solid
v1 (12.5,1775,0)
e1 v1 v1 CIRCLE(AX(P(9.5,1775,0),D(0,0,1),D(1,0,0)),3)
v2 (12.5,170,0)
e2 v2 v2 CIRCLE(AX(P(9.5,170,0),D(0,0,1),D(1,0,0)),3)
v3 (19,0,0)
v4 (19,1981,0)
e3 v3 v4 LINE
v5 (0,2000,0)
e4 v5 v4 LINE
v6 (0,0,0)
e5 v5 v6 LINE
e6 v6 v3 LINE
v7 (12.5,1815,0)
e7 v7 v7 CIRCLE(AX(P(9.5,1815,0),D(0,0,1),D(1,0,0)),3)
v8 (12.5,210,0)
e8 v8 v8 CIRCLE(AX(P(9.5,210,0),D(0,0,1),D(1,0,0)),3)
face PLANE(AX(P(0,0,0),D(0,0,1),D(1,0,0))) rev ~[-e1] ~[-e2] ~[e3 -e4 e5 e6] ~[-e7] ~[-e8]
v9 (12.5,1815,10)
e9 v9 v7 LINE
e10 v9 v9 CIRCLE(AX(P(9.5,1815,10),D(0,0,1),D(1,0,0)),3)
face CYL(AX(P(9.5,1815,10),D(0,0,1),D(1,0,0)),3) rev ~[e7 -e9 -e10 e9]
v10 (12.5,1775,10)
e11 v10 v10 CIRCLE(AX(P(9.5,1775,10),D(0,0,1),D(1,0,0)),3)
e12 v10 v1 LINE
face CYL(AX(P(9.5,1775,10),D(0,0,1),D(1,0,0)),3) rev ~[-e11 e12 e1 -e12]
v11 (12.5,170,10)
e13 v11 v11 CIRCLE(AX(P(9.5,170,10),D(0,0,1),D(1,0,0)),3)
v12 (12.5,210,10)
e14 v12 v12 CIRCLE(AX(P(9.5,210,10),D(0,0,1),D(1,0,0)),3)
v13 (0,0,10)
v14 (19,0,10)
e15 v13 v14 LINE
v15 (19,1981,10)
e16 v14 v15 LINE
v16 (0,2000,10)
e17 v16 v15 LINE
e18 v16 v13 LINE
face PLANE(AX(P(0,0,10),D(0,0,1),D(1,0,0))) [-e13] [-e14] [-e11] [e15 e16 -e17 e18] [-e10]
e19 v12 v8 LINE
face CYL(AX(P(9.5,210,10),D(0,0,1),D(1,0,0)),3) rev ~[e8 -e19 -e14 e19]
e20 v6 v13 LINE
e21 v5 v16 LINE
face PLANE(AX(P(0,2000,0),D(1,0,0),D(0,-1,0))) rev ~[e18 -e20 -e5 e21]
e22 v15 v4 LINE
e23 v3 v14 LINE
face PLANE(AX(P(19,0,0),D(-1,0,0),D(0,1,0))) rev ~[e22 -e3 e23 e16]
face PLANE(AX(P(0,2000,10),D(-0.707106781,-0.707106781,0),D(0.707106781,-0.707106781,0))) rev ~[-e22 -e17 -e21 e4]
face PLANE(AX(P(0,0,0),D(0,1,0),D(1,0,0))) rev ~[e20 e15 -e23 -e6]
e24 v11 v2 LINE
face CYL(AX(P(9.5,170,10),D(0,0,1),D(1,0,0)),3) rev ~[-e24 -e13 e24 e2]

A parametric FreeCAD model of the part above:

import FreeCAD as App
import Part
import Sketcher


def add_polygon(sketch, points):
    """Adds a closed chain of lines whose ends are joined by coincident constraints."""
    first, n = sketch.GeometryCount, len(points)
    for a, b in zip(points, points[1:] + points[:1]):
        sketch.addGeometry(Part.LineSegment(App.Vector(*a, 0), App.Vector(*b, 0)), False)
    for i in range(n):
        sketch.addConstraint(Sketcher.Constraint("Coincident", first + i, 2, first + (i + 1) % n, 1))

doc = App.newDocument("Part")
body = doc.addObject("PartDesign::Body", "Body")

sketch1 = body.newObject("Sketcher::SketchObject", "Sketch")
sketch1.AttachmentSupport = (doc.getObject("XY_Plane"), [""])
sketch1.MapMode = "FlatFace"
add_polygon(sketch1, [(0, 2000), (0, 0), (19, 0), (19, 2000)])
sketch1.addConstraint([
    Sketcher.Constraint("Vertical", 0),
    Sketcher.Constraint("Horizontal", 1),
    Sketcher.Constraint("Vertical", 2),
    Sketcher.Constraint("Horizontal", 3),
    Sketcher.Constraint("Coincident", 0, 2, -1, 1),
    Sketcher.Constraint("DistanceX", 1, 1, 1, 2, 19.0),
    Sketcher.Constraint("DistanceY", 0, 2, 0, 1, 2000.0),
])
pad1 = body.newObject("PartDesign::Pad", "Pad")
pad1.Profile = sketch1
pad1.Length = 10

sketch2 = body.newObject("Sketcher::SketchObject", "Sketch001")
sketch2.AttachmentSupport = (doc.getObject("XY_Plane"), [""])
sketch2.MapMode = "FlatFace"
sketch2.AttachmentOffset = App.Placement(App.Vector(0, 0, 10), App.Rotation())
add_polygon(sketch2, [(0, 2000), (19, 1981), (19, 2000)])
sketch2.addConstraint([
    Sketcher.Constraint("Vertical", 1),
    Sketcher.Constraint("Horizontal", 2),
    Sketcher.Constraint("PointOnObject", 2, 2, -2),
    Sketcher.Constraint("Equal", 2, 1),
    Sketcher.Constraint("DistanceX", 2, 2, 2, 1, 19.0),
    Sketcher.Constraint("DistanceY", -1, 1, 0, 2, 1981.0),
])
pocket1 = body.newObject("PartDesign::Pocket", "Pocket")
pocket1.Profile = sketch2
pocket1.Length = 10

sketch3 = body.newObject("Sketcher::SketchObject", "Sketch002")
sketch3.AttachmentSupport = (doc.getObject("XY_Plane"), [""])
sketch3.MapMode = "FlatFace"
sketch3.AttachmentOffset = App.Placement(App.Vector(0, 0, 10), App.Rotation())
sketch3.addGeometry([
    Part.Circle(App.Vector(9.5, 210, 0), App.Vector(0, 0, 1), 3),
    Part.Circle(App.Vector(9.5, 170, 0), App.Vector(0, 0, 1), 3),
], False)
sketch3.addConstraint([
    Sketcher.Constraint("Equal", 0, 1),
    Sketcher.Constraint("Vertical", 0, 3, 1, 3),
    Sketcher.Constraint("Diameter", 0, 6.0),
    Sketcher.Constraint("DistanceY", -1, 1, 1, 3, 170.0),
    Sketcher.Constraint("DistanceY", 1, 3, 0, 3, 40.0),
    Sketcher.Constraint("DistanceX", -1, 1, 0, 3, 9.5),
])
pocket2 = body.newObject("PartDesign::Pocket", "Pocket001")
pocket2.Profile = sketch3
pocket2.Length = 10

sketch4 = body.newObject("Sketcher::SketchObject", "Sketch003")
sketch4.AttachmentSupport = (doc.getObject("XY_Plane"), [""])
sketch4.MapMode = "FlatFace"
sketch4.AttachmentOffset = App.Placement(App.Vector(0, 0, 10), App.Rotation())
sketch4.addGeometry([
    Part.Circle(App.Vector(9.5, 1815, 0), App.Vector(0, 0, 1), 3),
    Part.Circle(App.Vector(9.5, 1775, 0), App.Vector(0, 0, 1), 3),
], False)
sketch4.addConstraint([
    Sketcher.Constraint("Equal", 0, 1),
    Sketcher.Constraint("Vertical", 0, 3, 1, 3),
    Sketcher.Constraint("Diameter", 0, 6.0),
    Sketcher.Constraint("DistanceY", 1, 3, 0, 3, 40.0),
    Sketcher.Constraint("DistanceY", -1, 1, 0, 3, 1815.0),
    Sketcher.Constraint("DistanceX", -1, 1, 0, 3, 9.5),
])
pocket3 = body.newObject("PartDesign::Pocket", "Pocket002")
pocket3.Profile = sketch4
pocket3.Length = 10

doc.recompute()
